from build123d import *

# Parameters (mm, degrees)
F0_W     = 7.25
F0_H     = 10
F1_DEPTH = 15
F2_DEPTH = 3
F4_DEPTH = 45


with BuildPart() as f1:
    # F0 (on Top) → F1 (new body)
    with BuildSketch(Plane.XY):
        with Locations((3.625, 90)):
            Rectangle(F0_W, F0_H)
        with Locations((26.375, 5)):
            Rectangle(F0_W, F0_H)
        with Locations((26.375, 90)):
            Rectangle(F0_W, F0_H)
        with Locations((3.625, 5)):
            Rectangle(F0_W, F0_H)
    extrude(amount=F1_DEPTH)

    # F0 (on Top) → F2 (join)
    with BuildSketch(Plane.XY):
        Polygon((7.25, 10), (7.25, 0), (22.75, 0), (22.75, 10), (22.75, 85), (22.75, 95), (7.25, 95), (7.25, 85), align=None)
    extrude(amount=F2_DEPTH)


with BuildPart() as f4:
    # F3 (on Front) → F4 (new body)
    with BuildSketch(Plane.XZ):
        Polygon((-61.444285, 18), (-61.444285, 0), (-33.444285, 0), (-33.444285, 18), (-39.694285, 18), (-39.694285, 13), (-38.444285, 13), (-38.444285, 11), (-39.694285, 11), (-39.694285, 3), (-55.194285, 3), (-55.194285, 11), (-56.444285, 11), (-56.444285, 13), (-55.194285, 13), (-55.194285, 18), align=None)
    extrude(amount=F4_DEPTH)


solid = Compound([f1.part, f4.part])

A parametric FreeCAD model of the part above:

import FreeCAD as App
import Part
import Sketcher

doc = App.newDocument("Part")
params = doc.addObject("Spreadsheet::Sheet", "Params")
for row, (alias, value) in enumerate([
    ("sketch1_height", "10 mm"),
    ("sketch1_width", "7.25 mm"),
    ("pad1_length", "15 mm"),
    ("sketch2_height", "95 mm"),
    ("sketch2_width", "15.5 mm"),
    ("pad2_length", "3 mm"),
    ("sketch3_width", "28 mm"),
    ("sketch3_height", "18 mm"),
    ("sketch3_height2", "5 mm"),
    ("sketch3_height3", "2 mm"),
    ("sketch3_height4", "8 mm"),
    ("pad3_length", "45 mm"),
], start=1):
    params.set(f"A{row}", alias)
    params.set(f"B{row}", "=" + value)
    params.setAlias(f"B{row}", alias)

body = doc.addObject("PartDesign::Body", "Body")
body.AllowCompound = True

sketch1 = body.newObject("Sketcher::SketchObject", "Sketch")
sketch1.AttachmentSupport = (doc.getObject("XY_Plane"), [""])
sketch1.MapMode = "FlatFace"
sketch1.addGeometry(Part.LineSegment(App.Vector(0, 95, 0), App.Vector(0, 85, 0)), False)
sketch1.addGeometry(Part.LineSegment(App.Vector(0, 85, 0), App.Vector(7, 85, 0)), False)
sketch1.addGeometry(Part.LineSegment(App.Vector(7, 85, 0), App.Vector(7, 95, 0)), False)
sketch1.addGeometry(Part.LineSegment(App.Vector(7, 95, 0), App.Vector(0, 95, 0)), False)
sketch1.addGeometry(Part.LineSegment(App.Vector(23, 10, 0), App.Vector(23, 0, 0)), False)
sketch1.addGeometry(Part.LineSegment(App.Vector(23, 0, 0), App.Vector(30, 0, 0)), False)
sketch1.addGeometry(Part.LineSegment(App.Vector(30, 0, 0), App.Vector(30, 10, 0)), False)
sketch1.addGeometry(Part.LineSegment(App.Vector(30, 10, 0), App.Vector(23, 10, 0)), False)
sketch1.addGeometry(Part.LineSegment(App.Vector(23, 95, 0), App.Vector(23, 85, 0)), False)
sketch1.addGeometry(Part.LineSegment(App.Vector(23, 85, 0), App.Vector(30, 85, 0)), False)
sketch1.addGeometry(Part.LineSegment(App.Vector(30, 85, 0), App.Vector(30, 95, 0)), False)
sketch1.addGeometry(Part.LineSegment(App.Vector(30, 95, 0), App.Vector(23, 95, 0)), False)
sketch1.addGeometry(Part.LineSegment(App.Vector(0, 10, 0), App.Vector(0, 0, 0)), False)
sketch1.addGeometry(Part.LineSegment(App.Vector(0, 0, 0), App.Vector(7, 0, 0)), False)
sketch1.addGeometry(Part.LineSegment(App.Vector(7, 0, 0), App.Vector(7, 10, 0)), False)
sketch1.addGeometry(Part.LineSegment(App.Vector(7, 10, 0), App.Vector(0, 10, 0)), False)
sketch1.addConstraint(Sketcher.Constraint("Coincident", 0, 2, 1, 1))
sketch1.addConstraint(Sketcher.Constraint("Coincident", 1, 2, 2, 1))
sketch1.addConstraint(Sketcher.Constraint("Coincident", 2, 2, 3, 1))
sketch1.addConstraint(Sketcher.Constraint("Coincident", 3, 2, 0, 1))
sketch1.addConstraint(Sketcher.Constraint("Coincident", 4, 2, 5, 1))
sketch1.addConstraint(Sketcher.Constraint("Coincident", 5, 2, 6, 1))
sketch1.addConstraint(Sketcher.Constraint("Coincident", 6, 2, 7, 1))
sketch1.addConstraint(Sketcher.Constraint("Coincident", 7, 2, 4, 1))
sketch1.addConstraint(Sketcher.Constraint("Coincident", 8, 2, 9, 1))
sketch1.addConstraint(Sketcher.Constraint("Coincident", 9, 2, 10, 1))
sketch1.addConstraint(Sketcher.Constraint("Coincident", 10, 2, 11, 1))
sketch1.addConstraint(Sketcher.Constraint("Coincident", 11, 2, 8, 1))
sketch1.addConstraint(Sketcher.Constraint("Coincident", 12, 2, 13, 1))
sketch1.addConstraint(Sketcher.Constraint("Coincident", 13, 2, 14, 1))
sketch1.addConstraint(Sketcher.Constraint("Coincident", 14, 2, 15, 1))
sketch1.addConstraint(Sketcher.Constraint("Coincident", 15, 2, 12, 1))
sketch1.addConstraint(Sketcher.Constraint("Vertical", 0))
sketch1.addConstraint(Sketcher.Constraint("Horizontal", 1))
sketch1.addConstraint(Sketcher.Constraint("Vertical", 2))
sketch1.addConstraint(Sketcher.Constraint("Horizontal", 3))
sketch1.addConstraint(Sketcher.Constraint("Vertical", 4))
sketch1.addConstraint(Sketcher.Constraint("Horizontal", 5))
sketch1.addConstraint(Sketcher.Constraint("Vertical", 6))
sketch1.addConstraint(Sketcher.Constraint("Horizontal", 7))
sketch1.addConstraint(Sketcher.Constraint("Vertical", 8))
sketch1.addConstraint(Sketcher.Constraint("Horizontal", 9))
sketch1.addConstraint(Sketcher.Constraint("Vertical", 10))
sketch1.addConstraint(Sketcher.Constraint("Horizontal", 11))
sketch1.addConstraint(Sketcher.Constraint("Vertical", 12))
sketch1.addConstraint(Sketcher.Constraint("Horizontal", 13))
sketch1.addConstraint(Sketcher.Constraint("Vertical", 14))
sketch1.addConstraint(Sketcher.Constraint("Horizontal", 15))
sketch1.addConstraint(Sketcher.Constraint("Coincident", 12, 2, -1, 1))
sketch1.addConstraint(Sketcher.Constraint("PointOnObject", 0, 2, -2))
sketch1.addConstraint(Sketcher.Constraint("PointOnObject", 4, 2, -1))
sketch1.addConstraint(Sketcher.Constraint("Horizontal", 1, 2, 8, 2))
sketch1.addConstraint(Sketcher.Constraint("Horizontal", 3, 2, 10, 2))
sketch1.addConstraint(Sketcher.Constraint("Horizontal", 7, 2, 14, 2))
sketch1.addConstraint(Sketcher.Constraint("Vertical", 7, 2, 8, 2))
sketch1.addConstraint(Sketcher.Constraint("Vertical", 6, 2, 9, 2))
sketch1.addConstraint(Sketcher.Constraint("Vertical", 2, 2, 13, 2))
sketch1.addConstraint(Sketcher.Constraint("Equal", 3, 5))
sketch1.addConstraint(Sketcher.Constraint("Equal", 2, 4))
sketch1.addConstraint(Sketcher.Constraint("DistanceY", 0, 2, 0, 1, 10.0))
sketch1.addConstraint(Sketcher.Constraint("DistanceY", -1, 1, 0, 2, 85.0))
sketch1.addConstraint(Sketcher.Constraint("DistanceX", -1, 1, 5, 2, 30.0))
sketch1.addConstraint(Sketcher.Constraint("DistanceX", 1, 1, 1, 2, 7.25))
sketch1.setExpression("Constraints[43]", "Params.sketch1_height")
sketch1.setExpression("Constraints[46]", "Params.sketch1_width")
pad1 = body.newObject("PartDesign::Pad", "Pad")
pad1.Profile = sketch1
pad1.setExpression("Length", "Params.pad1_length")

sketch2 = body.newObject("Sketcher::SketchObject", "Sketch001")
sketch2.AttachmentSupport = (doc.getObject("XY_Plane"), [""])
sketch2.MapMode = "FlatFace"
sketch2.addGeometry(Part.LineSegment(App.Vector(7, 0, 0), App.Vector(23, 0, 0)), False)
sketch2.addGeometry(Part.LineSegment(App.Vector(23, 0, 0), App.Vector(23, 95, 0)), False)
sketch2.addGeometry(Part.LineSegment(App.Vector(23, 95, 0), App.Vector(7, 95, 0)), False)
sketch2.addGeometry(Part.LineSegment(App.Vector(7, 95, 0), App.Vector(7, 0, 0)), False)
sketch2.addConstraint(Sketcher.Constraint("Coincident", 0, 2, 1, 1))
sketch2.addConstraint(Sketcher.Constraint("Coincident", 1, 2, 2, 1))
sketch2.addConstraint(Sketcher.Constraint("Coincident", 2, 2, 3, 1))
sketch2.addConstraint(Sketcher.Constraint("Coincident", 3, 2, 0, 1))
sketch2.addConstraint(Sketcher.Constraint("Horizontal", 0))
sketch2.addConstraint(Sketcher.Constraint("Vertical", 1))
sketch2.addConstraint(Sketcher.Constraint("Horizontal", 2))
sketch2.addConstraint(Sketcher.Constraint("Vertical", 3))
sketch2.addConstraint(Sketcher.Constraint("PointOnObject", 0, 2, -1))
sketch2.addConstraint(Sketcher.Constraint("DistanceY", 1, 1, 1, 2, 95.0))
sketch2.addConstraint(Sketcher.Constraint("DistanceX", 0, 1, 0, 2, 15.5))
sketch2.addConstraint(Sketcher.Constraint("DistanceX", -1, 1, 0, 2, 22.75))
sketch2.setExpression("Constraints[9]", "Params.sketch2_height")
sketch2.setExpression("Constraints[10]", "Params.sketch2_width")
pad2 = body.newObject("PartDesign::Pad", "Pad001")
pad2.Profile = sketch2
pad2.setExpression("Length", "Params.pad2_length")
body2 = doc.addObject("PartDesign::Body", "Body001")

sketch3 = body2.newObject("Sketcher::SketchObject", "Sketch002")
sketch3.AttachmentSupport = (doc.getObject("XZ_Plane001"), [""])
sketch3.MapMode = "FlatFace"
sketch3.addGeometry(Part.LineSegment(App.Vector(-61.4, 18, 0), App.Vector(-61.4, 0, 0)), False)
sketch3.addGeometry(Part.LineSegment(App.Vector(-61.4, 0, 0), App.Vector(-33.4, 0, 0)), False)
sketch3.addGeometry(Part.LineSegment(App.Vector(-33.4, 0, 0), App.Vector(-33.4, 18, 0)), False)
sketch3.addGeometry(Part.LineSegment(App.Vector(-33.4, 18, 0), App.Vector(-39.7, 18, 0)), False)
sketch3.addGeometry(Part.LineSegment(App.Vector(-39.7, 18, 0), App.Vector(-39.7, 13, 0)), False)
sketch3.addGeometry(Part.LineSegment(App.Vector(-39.7, 13, 0), App.Vector(-38.4, 13, 0)), False)
sketch3.addGeometry(Part.LineSegment(App.Vector(-38.4, 13, 0), App.Vector(-38.4, 11, 0)), False)
sketch3.addGeometry(Part.LineSegment(App.Vector(-38.4, 11, 0), App.Vector(-39.7, 11, 0)), False)
sketch3.addGeometry(Part.LineSegment(App.Vector(-39.7, 11, 0), App.Vector(-39.7, 3, 0)), False)
sketch3.addGeometry(Part.LineSegment(App.Vector(-39.7, 3, 0), App.Vector(-55.2, 3, 0)), False)
sketch3.addGeometry(Part.LineSegment(App.Vector(-55.2, 3, 0), App.Vector(-55.2, 11, 0)), False)
sketch3.addGeometry(Part.LineSegment(App.Vector(-55.2, 11, 0), App.Vector(-56.4, 11, 0)), False)
sketch3.addGeometry(Part.LineSegment(App.Vector(-56.4, 11, 0), App.Vector(-56.4, 13, 0)), False)
sketch3.addGeometry(Part.LineSegment(App.Vector(-56.4, 13, 0), App.Vector(-55.2, 13, 0)), False)
sketch3.addGeometry(Part.LineSegment(App.Vector(-55.2, 13, 0), App.Vector(-55.2, 18, 0)), False)
sketch3.addGeometry(Part.LineSegment(App.Vector(-55.2, 18, 0), App.Vector(-61.4, 18, 0)), False)
sketch3.addConstraint(Sketcher.Constraint("Coincident", 0, 2, 1, 1))
sketch3.addConstraint(Sketcher.Constraint("Coincident", 1, 2, 2, 1))
sketch3.addConstraint(Sketcher.Constraint("Coincident", 2, 2, 3, 1))
sketch3.addConstraint(Sketcher.Constraint("Coincident", 3, 2, 4, 1))
sketch3.addConstraint(Sketcher.Constraint("Coincident", 4, 2, 5, 1))
sketch3.addConstraint(Sketcher.Constraint("Coincident", 5, 2, 6, 1))
sketch3.addConstraint(Sketcher.Constraint("Coincident", 6, 2, 7, 1))
sketch3.addConstraint(Sketcher.Constraint("Coincident", 7, 2, 8, 1))
sketch3.addConstraint(Sketcher.Constraint("Coincident", 8, 2, 9, 1))
sketch3.addConstraint(Sketcher.Constraint("Coincident", 9, 2, 10, 1))
sketch3.addConstraint(Sketcher.Constraint("Coincident", 10, 2, 11, 1))
sketch3.addConstraint(Sketcher.Constraint("Coincident", 11, 2, 12, 1))
sketch3.addConstraint(Sketcher.Constraint("Coincident", 12, 2, 13, 1))
sketch3.addConstraint(Sketcher.Constraint("Coincident", 13, 2, 14, 1))
sketch3.addConstraint(Sketcher.Constraint("Coincident", 14, 2, 15, 1))
sketch3.addConstraint(Sketcher.Constraint("Coincident", 15, 2, 0, 1))
sketch3.addConstraint(Sketcher.Constraint("Vertical", 0))
sketch3.addConstraint(Sketcher.Constraint("Horizontal", 1))
sketch3.addConstraint(Sketcher.Constraint("Vertical", 2))
sketch3.addConstraint(Sketcher.Constraint("Horizontal", 3))
sketch3.addConstraint(Sketcher.Constraint("Vertical", 4))
sketch3.addConstraint(Sketcher.Constraint("Horizontal", 5))
sketch3.addConstraint(Sketcher.Constraint("Vertical", 6))
sketch3.addConstraint(Sketcher.Constraint("Horizontal", 7))
sketch3.addConstraint(Sketcher.Constraint("Vertical", 8))
sketch3.addConstraint(Sketcher.Constraint("Horizontal", 9))
sketch3.addConstraint(Sketcher.Constraint("Vertical", 10))
sketch3.addConstraint(Sketcher.Constraint("Horizontal", 11))
sketch3.addConstraint(Sketcher.Constraint("Vertical", 12))
sketch3.addConstraint(Sketcher.Constraint("Horizontal", 13))
sketch3.addConstraint(Sketcher.Constraint("Vertical", 14))
sketch3.addConstraint(Sketcher.Constraint("Horizontal", 15))
sketch3.addConstraint(Sketcher.Constraint("PointOnObject", 0, 2, -1))
sketch3.addConstraint(Sketcher.Constraint("Horizontal", 7, 2, 10, 2))
sketch3.addConstraint(Sketcher.Constraint("Horizontal", 5, 2, 12, 2))
sketch3.addConstraint(Sketcher.Constraint("Horizontal", 3, 2, 14, 2))
sketch3.addConstraint(Sketcher.Constraint("Vertical", 4, 2, 7, 2))
sketch3.addConstraint(Sketcher.Constraint("Vertical", 10, 2, 13, 2))
sketch3.addConstraint(Sketcher.Constraint("Equal", 7, 11))
sketch3.addConstraint(Sketcher.Constraint("Equal", 3, 15))
sketch3.addConstraint(Sketcher.Constraint("DistanceX", 1, 1, 1, 2, 28.0))
sketch3.addConstraint(Sketcher.Constraint("DistanceY", 0, 2, 0, 1, 18.0))
sketch3.addConstraint(Sketcher.Constraint("DistanceY", 4, 2, 4, 1, 5.0))
sketch3.addConstraint(Sketcher.Constraint("DistanceY", 6, 2, 6, 1, 2.0))
sketch3.addConstraint(Sketcher.Constraint("DistanceY", 8, 2, 8, 1, 8.0))
sketch3.addConstraint(Sketcher.Constraint("DistanceX", 9, 2, 9, 1, 15.5))
sketch3.addConstraint(Sketcher.Constraint("DistanceX", 5, 2, 2, 2, 5.0))
sketch3.addConstraint(Sketcher.Constraint("DistanceX", 0, 2, -1, 1, 61.444285))
sketch3.setExpression("Constraints[40]", "Params.sketch3_width")
sketch3.setExpression("Constraints[41]", "Params.sketch3_height")
sketch3.setExpression("Constraints[42]", "Params.sketch3_height2")
sketch3.setExpression("Constraints[43]", "Params.sketch3_height3")
sketch3.setExpression("Constraints[44]", "Params.sketch3_height4")
pad3 = body2.newObject("PartDesign::Pad", "Pad002")
pad3.Profile = sketch3
pad3.setExpression("Length", "Params.pad3_length")

doc.recompute()
